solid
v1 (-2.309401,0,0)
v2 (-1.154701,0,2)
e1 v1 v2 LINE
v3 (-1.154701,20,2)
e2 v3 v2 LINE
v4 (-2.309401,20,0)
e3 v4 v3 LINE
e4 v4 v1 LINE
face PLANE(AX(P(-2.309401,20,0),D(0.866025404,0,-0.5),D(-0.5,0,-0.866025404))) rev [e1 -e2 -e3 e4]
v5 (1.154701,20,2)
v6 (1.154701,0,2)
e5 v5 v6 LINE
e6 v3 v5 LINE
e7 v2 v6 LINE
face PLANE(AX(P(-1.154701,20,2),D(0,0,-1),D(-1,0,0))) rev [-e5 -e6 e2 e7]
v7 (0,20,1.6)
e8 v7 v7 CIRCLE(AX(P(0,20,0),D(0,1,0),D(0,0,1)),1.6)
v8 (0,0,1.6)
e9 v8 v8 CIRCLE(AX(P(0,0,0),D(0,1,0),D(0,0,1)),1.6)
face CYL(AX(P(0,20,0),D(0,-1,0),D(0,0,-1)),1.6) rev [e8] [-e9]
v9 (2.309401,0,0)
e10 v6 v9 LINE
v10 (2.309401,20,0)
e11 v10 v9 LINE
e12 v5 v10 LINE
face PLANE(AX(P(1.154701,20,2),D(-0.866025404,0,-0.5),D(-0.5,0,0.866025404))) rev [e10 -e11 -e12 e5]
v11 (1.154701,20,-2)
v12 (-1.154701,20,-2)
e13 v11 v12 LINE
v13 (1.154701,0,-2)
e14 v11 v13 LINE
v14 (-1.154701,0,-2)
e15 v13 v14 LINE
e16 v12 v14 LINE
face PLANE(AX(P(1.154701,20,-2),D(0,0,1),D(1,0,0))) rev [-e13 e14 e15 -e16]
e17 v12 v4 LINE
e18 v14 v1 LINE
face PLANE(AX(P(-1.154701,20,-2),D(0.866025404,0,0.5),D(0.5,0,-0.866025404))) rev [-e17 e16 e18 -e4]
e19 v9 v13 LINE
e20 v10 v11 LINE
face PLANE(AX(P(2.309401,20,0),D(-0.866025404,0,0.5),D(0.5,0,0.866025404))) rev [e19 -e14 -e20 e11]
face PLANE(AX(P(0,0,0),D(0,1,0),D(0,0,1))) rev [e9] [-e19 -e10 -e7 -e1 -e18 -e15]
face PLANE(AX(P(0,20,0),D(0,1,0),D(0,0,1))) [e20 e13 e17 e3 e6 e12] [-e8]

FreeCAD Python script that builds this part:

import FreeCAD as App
import Part
import Sketcher

V = App.Vector
Q = App.Units.Quantity


def add_polygon(sketch, points):
    """Adds a closed chain of lines whose ends are joined by coincident constraints."""
    first, n = sketch.GeometryCount, len(points)
    for a, b in zip(points, points[1:] + points[:1]):
        sketch.addGeometry(Part.LineSegment(App.Vector(*a, 0), App.Vector(*b, 0)), False)
    for i in range(n):
        sketch.addConstraint(Sketcher.Constraint("Coincident", first + i, 2, first + (i + 1) % n, 1))

doc = App.newDocument("Part")
body = doc.addObject("PartDesign::Body", "Body")

# Sketch on XZ plane
sketch1 = body.newObject("Sketcher::SketchObject", "Sketch")
sketch1.AttachmentSupport = (doc.getObject("XZ_Plane"), [""])
sketch1.MapMode = "FlatFace"
add_polygon(sketch1, [(2.3, 0), (1.2, -2), (-1.2, -2), (-2.3, 0), (-1.2, 2), (1.2, 2)])  # lines 0-5
sketch1.addGeometry(Part.Circle(V(0, 0, 0), V(0, 0, 1), 1.6), False)  # 6
sketch1.addConstraint(Sketcher.Constraint("Horizontal", 1))
sketch1.addConstraint(Sketcher.Constraint("Horizontal", 4))
sketch1.addConstraint(Sketcher.Constraint("Coincident", 6, 3, -1, 1))
sketch1.addConstraint(Sketcher.Constraint("Symmetric", 0, 2, 3, 2, -1, 1))
sketch1.addConstraint(Sketcher.Constraint("Symmetric", 2, 2, 5, 2, -1, 1))
sketch1.addConstraint(Sketcher.Constraint("PointOnObject", 2, 2, -1))
sketch1.addConstraint(Sketcher.Constraint("Parallel", 2, 5))
sketch1.addConstraint(Sketcher.Constraint("Vertical", 1, 2, 3, 2))
sketch1.addConstraint(Sketcher.Constraint("Diameter", 6, Q("3.2 mm")))
sketch1.addConstraint(Sketcher.Constraint("Angle", 0, Q("-120 deg")))
sketch1.addConstraint(Sketcher.Constraint("DistanceY", 0, 2, -1, 1, Q("2 mm")))
sketch1.addConstraint(Sketcher.Constraint("DistanceX", 1, 2, 1, 1, Q("2.309401 mm")))
pad1 = body.newObject("PartDesign::Pad", "Pad")
pad1.Profile = sketch1
pad1.Length = 20
pad1.Reversed = True

doc.recompute()
